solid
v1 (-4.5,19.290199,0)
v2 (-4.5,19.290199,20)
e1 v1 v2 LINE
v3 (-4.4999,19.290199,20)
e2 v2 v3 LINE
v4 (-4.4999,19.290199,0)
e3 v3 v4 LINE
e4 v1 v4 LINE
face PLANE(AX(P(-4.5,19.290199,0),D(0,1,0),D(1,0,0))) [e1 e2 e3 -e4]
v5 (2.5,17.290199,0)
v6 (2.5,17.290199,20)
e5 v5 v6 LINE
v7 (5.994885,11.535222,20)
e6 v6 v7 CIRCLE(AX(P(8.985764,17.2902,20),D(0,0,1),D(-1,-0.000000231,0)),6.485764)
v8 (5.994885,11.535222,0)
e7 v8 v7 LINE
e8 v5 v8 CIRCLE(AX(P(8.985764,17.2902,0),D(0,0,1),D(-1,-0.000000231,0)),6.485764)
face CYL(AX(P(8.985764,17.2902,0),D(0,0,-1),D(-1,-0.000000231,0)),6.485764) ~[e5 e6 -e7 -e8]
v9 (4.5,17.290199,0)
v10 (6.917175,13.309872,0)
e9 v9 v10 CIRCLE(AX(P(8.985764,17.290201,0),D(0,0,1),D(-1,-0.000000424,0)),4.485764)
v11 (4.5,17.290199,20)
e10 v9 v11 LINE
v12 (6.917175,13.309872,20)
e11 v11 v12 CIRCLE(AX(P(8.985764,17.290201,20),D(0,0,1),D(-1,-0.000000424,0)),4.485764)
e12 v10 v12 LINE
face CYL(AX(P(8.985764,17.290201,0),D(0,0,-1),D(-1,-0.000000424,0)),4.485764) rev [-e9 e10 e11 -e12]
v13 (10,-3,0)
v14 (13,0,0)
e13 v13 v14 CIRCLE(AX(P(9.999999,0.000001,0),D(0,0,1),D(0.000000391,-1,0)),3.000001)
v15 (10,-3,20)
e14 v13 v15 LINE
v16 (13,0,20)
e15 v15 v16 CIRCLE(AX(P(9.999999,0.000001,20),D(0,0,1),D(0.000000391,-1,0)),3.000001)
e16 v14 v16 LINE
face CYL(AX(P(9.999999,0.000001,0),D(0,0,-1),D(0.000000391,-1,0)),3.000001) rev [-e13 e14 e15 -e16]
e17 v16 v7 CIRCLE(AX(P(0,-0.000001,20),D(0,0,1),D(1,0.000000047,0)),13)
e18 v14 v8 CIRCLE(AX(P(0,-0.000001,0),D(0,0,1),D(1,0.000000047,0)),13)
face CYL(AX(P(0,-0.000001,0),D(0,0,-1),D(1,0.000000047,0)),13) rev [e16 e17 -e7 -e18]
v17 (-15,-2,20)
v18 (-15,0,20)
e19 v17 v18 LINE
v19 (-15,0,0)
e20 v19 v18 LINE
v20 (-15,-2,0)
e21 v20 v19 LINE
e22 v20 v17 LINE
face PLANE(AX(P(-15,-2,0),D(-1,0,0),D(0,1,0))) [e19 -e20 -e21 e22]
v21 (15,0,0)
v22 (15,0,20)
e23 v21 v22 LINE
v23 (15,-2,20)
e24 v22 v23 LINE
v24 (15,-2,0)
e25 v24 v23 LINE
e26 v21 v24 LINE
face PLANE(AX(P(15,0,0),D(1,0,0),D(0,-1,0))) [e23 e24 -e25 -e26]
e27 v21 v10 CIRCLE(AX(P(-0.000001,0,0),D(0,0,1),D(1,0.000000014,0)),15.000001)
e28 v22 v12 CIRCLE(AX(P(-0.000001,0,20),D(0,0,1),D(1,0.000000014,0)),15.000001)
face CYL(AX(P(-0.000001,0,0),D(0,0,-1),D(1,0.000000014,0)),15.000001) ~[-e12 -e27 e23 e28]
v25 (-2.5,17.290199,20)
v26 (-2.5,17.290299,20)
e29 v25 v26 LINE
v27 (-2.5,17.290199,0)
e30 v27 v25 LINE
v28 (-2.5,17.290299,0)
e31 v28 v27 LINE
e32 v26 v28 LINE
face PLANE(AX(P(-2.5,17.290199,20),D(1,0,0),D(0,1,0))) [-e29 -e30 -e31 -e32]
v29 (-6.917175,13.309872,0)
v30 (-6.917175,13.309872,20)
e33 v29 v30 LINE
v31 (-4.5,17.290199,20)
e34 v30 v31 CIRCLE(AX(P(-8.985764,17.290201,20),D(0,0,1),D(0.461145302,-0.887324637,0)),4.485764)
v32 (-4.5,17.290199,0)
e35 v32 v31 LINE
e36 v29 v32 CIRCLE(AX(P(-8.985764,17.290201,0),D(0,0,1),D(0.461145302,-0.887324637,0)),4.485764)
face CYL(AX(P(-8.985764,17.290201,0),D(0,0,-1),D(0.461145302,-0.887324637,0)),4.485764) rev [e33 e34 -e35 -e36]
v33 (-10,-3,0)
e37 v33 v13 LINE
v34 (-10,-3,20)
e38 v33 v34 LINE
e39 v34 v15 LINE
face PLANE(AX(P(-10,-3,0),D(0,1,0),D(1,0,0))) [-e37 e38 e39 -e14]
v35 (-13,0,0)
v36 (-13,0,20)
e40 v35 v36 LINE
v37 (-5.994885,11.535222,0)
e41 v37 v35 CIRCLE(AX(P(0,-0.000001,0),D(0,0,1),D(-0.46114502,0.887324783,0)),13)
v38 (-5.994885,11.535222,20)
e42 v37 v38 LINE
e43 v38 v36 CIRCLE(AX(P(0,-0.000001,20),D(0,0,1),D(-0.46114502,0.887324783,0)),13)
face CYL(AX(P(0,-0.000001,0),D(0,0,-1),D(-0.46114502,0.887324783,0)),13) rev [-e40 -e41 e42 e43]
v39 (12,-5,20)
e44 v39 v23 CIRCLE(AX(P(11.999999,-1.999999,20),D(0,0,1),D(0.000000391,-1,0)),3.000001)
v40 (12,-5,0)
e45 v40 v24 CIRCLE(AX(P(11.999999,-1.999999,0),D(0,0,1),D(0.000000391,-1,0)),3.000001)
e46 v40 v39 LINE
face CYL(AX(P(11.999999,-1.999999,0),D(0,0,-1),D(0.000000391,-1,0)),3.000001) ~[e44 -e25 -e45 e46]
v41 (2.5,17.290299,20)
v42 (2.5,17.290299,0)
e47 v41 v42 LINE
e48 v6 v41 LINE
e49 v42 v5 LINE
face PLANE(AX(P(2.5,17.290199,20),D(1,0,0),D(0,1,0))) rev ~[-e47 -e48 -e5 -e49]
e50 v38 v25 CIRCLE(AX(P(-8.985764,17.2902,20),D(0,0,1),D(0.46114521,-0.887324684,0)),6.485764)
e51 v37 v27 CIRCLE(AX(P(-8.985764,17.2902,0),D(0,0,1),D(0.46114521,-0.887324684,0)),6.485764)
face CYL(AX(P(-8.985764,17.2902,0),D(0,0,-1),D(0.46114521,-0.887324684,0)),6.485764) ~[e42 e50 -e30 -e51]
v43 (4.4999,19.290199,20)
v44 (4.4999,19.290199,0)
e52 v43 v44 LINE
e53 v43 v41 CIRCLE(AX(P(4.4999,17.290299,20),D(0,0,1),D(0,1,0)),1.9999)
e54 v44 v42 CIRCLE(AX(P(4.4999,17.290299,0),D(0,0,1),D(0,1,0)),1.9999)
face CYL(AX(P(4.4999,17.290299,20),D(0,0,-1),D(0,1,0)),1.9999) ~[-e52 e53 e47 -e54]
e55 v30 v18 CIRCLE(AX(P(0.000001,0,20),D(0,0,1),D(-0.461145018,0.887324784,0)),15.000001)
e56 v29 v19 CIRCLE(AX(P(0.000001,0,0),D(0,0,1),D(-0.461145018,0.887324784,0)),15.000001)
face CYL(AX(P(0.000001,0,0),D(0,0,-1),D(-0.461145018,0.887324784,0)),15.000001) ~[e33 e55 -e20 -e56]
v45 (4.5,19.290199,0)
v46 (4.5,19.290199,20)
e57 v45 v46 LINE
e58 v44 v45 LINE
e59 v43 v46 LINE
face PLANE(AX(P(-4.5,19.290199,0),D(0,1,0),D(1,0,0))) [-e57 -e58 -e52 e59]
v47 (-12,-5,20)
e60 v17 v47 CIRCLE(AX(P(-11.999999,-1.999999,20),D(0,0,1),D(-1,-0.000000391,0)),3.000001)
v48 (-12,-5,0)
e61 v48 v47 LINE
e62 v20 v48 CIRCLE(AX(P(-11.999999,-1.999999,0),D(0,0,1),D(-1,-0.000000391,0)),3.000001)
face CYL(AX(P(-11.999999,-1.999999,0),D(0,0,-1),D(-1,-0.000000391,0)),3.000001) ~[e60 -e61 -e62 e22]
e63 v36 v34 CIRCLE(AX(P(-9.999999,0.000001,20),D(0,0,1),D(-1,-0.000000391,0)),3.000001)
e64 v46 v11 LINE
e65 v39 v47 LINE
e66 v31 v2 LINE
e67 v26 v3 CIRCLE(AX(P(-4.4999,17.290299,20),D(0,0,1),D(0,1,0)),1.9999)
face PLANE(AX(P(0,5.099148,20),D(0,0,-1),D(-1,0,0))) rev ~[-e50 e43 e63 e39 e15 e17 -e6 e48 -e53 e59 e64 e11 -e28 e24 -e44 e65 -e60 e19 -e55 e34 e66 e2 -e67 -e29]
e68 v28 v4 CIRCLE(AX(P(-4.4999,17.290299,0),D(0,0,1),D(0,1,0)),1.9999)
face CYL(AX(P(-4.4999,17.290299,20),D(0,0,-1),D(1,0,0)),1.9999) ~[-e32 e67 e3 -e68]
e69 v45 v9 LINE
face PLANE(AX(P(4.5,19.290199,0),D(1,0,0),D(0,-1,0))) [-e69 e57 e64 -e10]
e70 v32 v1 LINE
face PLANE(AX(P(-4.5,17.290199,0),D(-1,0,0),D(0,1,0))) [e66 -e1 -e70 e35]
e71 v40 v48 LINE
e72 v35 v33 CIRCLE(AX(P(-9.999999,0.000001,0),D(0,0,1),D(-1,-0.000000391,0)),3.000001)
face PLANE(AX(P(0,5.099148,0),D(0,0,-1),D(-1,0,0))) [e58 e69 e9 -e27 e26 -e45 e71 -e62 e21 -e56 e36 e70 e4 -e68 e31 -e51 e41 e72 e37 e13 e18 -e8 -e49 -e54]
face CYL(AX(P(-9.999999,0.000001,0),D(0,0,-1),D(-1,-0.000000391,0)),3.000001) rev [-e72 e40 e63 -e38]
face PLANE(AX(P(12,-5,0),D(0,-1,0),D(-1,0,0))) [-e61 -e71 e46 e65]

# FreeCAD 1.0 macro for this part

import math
import FreeCAD as App
import Part
import Sketcher
from FreeCAD import Vector


def edges_at(feature, points):
    """Names of the edges that pass closest to the given points."""
    edges = feature.Shape.Edges
    near = lambda p: min(range(len(edges)), key=lambda i: edges[i].distToShape(Part.Vertex(*p))[0])
    return sorted({f"Edge{near(p) + 1}" for p in points})

doc = App.newDocument("Part")
params = doc.addObject("Spreadsheet::Sheet", "Params")
for row, (alias, value) in enumerate([
    ("sketch1_radius", "15.000001 mm"),
    ("sketch1_radius2", "3.000001 mm"),
    ("sketch1_radius3", "13 mm"),
    ("sketch1_width", "9 mm"),
    ("sketch1_height", "2 mm"),
    ("pad1_length", "20 mm"),
    ("sketch2_width", "5 mm"),
    ("sketch2_height", "2 mm"),
    ("fillet_radius", "1.9999 mm"),
], start=1):
    params.set(f"A{row}", alias)
    params.set(f"B{row}", "=" + value)
    params.setAlias(f"B{row}", alias)

body = doc.addObject("PartDesign::Body", "Body")

# Sketch on XY plane
sketch1 = doc.addObject("Sketcher::SketchObject", "Sketch")
body.addObject(sketch1)
sketch1.AttachmentSupport = (doc.XY_Plane, [""])
sketch1.MapMode = "FlatFace"
sketch1.addGeometry([
    Part.LineSegment(Vector(15, -2, 0), Vector(15, 0, 0)),  # 0
    Part.ArcOfCircle(Part.Circle(Vector(0, 0, 0), Vector(0, 0, 1), 15), math.radians(0), math.radians(63)),  # 1
    Part.ArcOfCircle(Part.Circle(Vector(9, 17.3, 0), Vector(0, 0, 1), 4.5), math.radians(-180), math.radians(-117)),  # 2
    Part.LineSegment(Vector(4.5, 17.3, 0), Vector(4.5, 19.3, 0)),  # 3
    Part.LineSegment(Vector(4.5, 19.3, 0), Vector(-4.5, 19.3, 0)),  # 4
    Part.LineSegment(Vector(-4.5, 19.3, 0), Vector(-4.5, 17.3, 0)),  # 5
    Part.ArcOfCircle(Part.Circle(Vector(-9, 17.3, 0), Vector(0, 0, 1), 4.5), math.radians(-63), math.radians(0)),  # 6
    Part.ArcOfCircle(Part.Circle(Vector(0, 0, 0), Vector(0, 0, 1), 15), math.radians(117), math.radians(180)),  # 7
    Part.LineSegment(Vector(-15, 0, 0), Vector(-15, -2, 0)),  # 8
    Part.ArcOfCircle(Part.Circle(Vector(-12, -2, 0), Vector(0, 0, 1), 3), math.radians(-180), math.radians(-90)),  # 9
    Part.LineSegment(Vector(-12, -5, 0), Vector(12, -5, 0)),  # 10
    Part.ArcOfCircle(Part.Circle(Vector(12, -2, 0), Vector(0, 0, 1), 3), math.radians(-90), math.radians(0)),  # 11
    Part.ArcOfCircle(Part.Circle(Vector(-10, 0, 0), Vector(0, 0, 1), 3), math.radians(-180), math.radians(-90)),  # 12
    Part.ArcOfCircle(Part.Circle(Vector(0, 0, 0), Vector(0, 0, 1), 13), math.radians(117), math.radians(180)),  # 13
    Part.ArcOfCircle(Part.Circle(Vector(-9, 17.3, 0), Vector(0, 0, 1), 6.5), math.radians(-63), math.radians(0)),  # 14
    Part.LineSegment(Vector(-2.5, 17.3, 0), Vector(2.5, 17.3, 0)),  # 15
    Part.ArcOfCircle(Part.Circle(Vector(9, 17.3, 0), Vector(0, 0, 1), 6.5), math.radians(-180), math.radians(-117)),  # 16
    Part.ArcOfCircle(Part.Circle(Vector(0, 0, 0), Vector(0, 0, 1), 13), math.radians(0), math.radians(63)),  # 17
    Part.ArcOfCircle(Part.Circle(Vector(10, 0, 0), Vector(0, 0, 1), 3), math.radians(-90), math.radians(0)),  # 18
    Part.LineSegment(Vector(10, -3, 0), Vector(-10, -3, 0)),  # 19
], False)
sketch1.addConstraint([
    Sketcher.Constraint("Tangent", 0, 2, 1, 1),
    Sketcher.Constraint("Tangent", 1, 2, 2, 2),
    Sketcher.Constraint("Tangent", 2, 1, 3, 1),
    Sketcher.Constraint("Coincident", 3, 2, 4, 1),
    Sketcher.Constraint("Coincident", 4, 2, 5, 1),
    Sketcher.Constraint("Tangent", 5, 2, 6, 2),
    Sketcher.Constraint("Tangent", 6, 1, 7, 1),
    Sketcher.Constraint("Tangent", 7, 2, 8, 1),
    Sketcher.Constraint("Tangent", 8, 2, 9, 1),
    Sketcher.Constraint("Tangent", 9, 2, 10, 1),
    Sketcher.Constraint("Tangent", 10, 2, 11, 1),
    Sketcher.Constraint("Tangent", 11, 2, 0, 1),
    Sketcher.Constraint("Tangent", 12, 1, 13, 2),
    Sketcher.Constraint("Tangent", 13, 1, 14, 1),
    Sketcher.Constraint("Coincident", 14, 2, 15, 1),
    Sketcher.Constraint("Coincident", 15, 2, 16, 1),
    Sketcher.Constraint("Tangent", 16, 2, 17, 2),
    Sketcher.Constraint("Tangent", 17, 1, 18, 2),
    Sketcher.Constraint("Tangent", 18, 1, 19, 1),
    Sketcher.Constraint("Tangent", 19, 2, 12, 2),
    Sketcher.Constraint("Vertical", 0),
    Sketcher.Constraint("Vertical", 3),
    Sketcher.Constraint("Horizontal", 4),
    Sketcher.Constraint("Vertical", 5),
    Sketcher.Constraint("Vertical", 8),
    Sketcher.Constraint("Horizontal", 10),
    Sketcher.Constraint("Horizontal", 15),
    Sketcher.Constraint("Horizontal", 19),
    Sketcher.Constraint("Coincident", 1, 3, -1, 1),
    Sketcher.Constraint("Coincident", 7, 3, -1, 1),
    Sketcher.Constraint("Coincident", 13, 3, -1, 1),
    Sketcher.Constraint("Coincident", 17, 3, -1, 1),
    Sketcher.Constraint("Coincident", 14, 3, 6, 3),
    Sketcher.Constraint("Coincident", 16, 3, 2, 3),
    Sketcher.Constraint("Equal", 2, 6),
    Sketcher.Constraint("Equal", 1, 7),
    Sketcher.Constraint("Equal", 9, 11),
    Sketcher.Constraint("Equal", 11, 12),
    Sketcher.Constraint("Equal", 14, 16),
    Sketcher.Constraint("Equal", 12, 18),
    Sketcher.Constraint("PointOnObject", 12, 3, -1),
    Sketcher.Constraint("Horizontal", 2, 3, 6, 3),
    Sketcher.Constraint("Horizontal", 5, 2, 14, 2),
    Sketcher.Constraint("Equal", 0, 3),
    Sketcher.Constraint("Radius", 1, 15.000001),
    Sketcher.Constraint("Radius", 9, 3.000001),
    Sketcher.Constraint("Radius", 13, 13.0),
    Sketcher.Constraint("DistanceX", 4, 2, 4, 1, 9.0),
    Sketcher.Constraint("DistanceY", 0, 1, 0, 2, 2.0),
    Sketcher.Constraint("Radius", 2, 4.485764),
])
sketch1.setExpression("Constraints[44]", "Params.sketch1_radius")
sketch1.setExpression("Constraints[45]", "Params.sketch1_radius2")
sketch1.setExpression("Constraints[46]", "Params.sketch1_radius3")
sketch1.setExpression("Constraints[47]", "Params.sketch1_width")
sketch1.setExpression("Constraints[48]", "Params.sketch1_height")
pad1 = doc.addObject("PartDesign::Pad", "Pad")
body.addObject(pad1)
pad1.Profile = sketch1
pad1.setExpression("Length", "Params.pad1_length")

# Sketch on XY plane
sketch2 = doc.addObject("Sketcher::SketchObject", "Sketch001")
body.addObject(sketch2)
sketch2.AttachmentSupport = (doc.XY_Plane, [""])
sketch2.MapMode = "FlatFace"
sketch2.AttachmentOffset = App.Placement(Vector(0, 0, 20), App.Rotation())
sketch2.addGeometry([
    Part.LineSegment(Vector(-2.5, 19.3, 0), Vector(-2.5, 17.3, 0)),
    Part.LineSegment(Vector(-2.5, 17.3, 0), Vector(2.5, 17.3, 0)),
    Part.LineSegment(Vector(2.5, 17.3, 0), Vector(2.5, 19.3, 0)),
    Part.LineSegment(Vector(2.5, 19.3, 0), Vector(-2.5, 19.3, 0)),
], False)
sketch2.addConstraint([
    Sketcher.Constraint("Coincident", 0, 2, 1, 1),
    Sketcher.Constraint("Coincident", 1, 2, 2, 1),
    Sketcher.Constraint("Coincident", 2, 2, 3, 1),
    Sketcher.Constraint("Coincident", 3, 2, 0, 1),
    Sketcher.Constraint("Vertical", 0),
    Sketcher.Constraint("Horizontal", 1),
    Sketcher.Constraint("Vertical", 2),
    Sketcher.Constraint("Horizontal", 3),
    Sketcher.Constraint("DistanceX", 1, 1, 1, 2, 5.0),
    Sketcher.Constraint("DistanceY", 0, 2, 0, 1, 2.0),
    Sketcher.Constraint("DistanceX", 0, 2, -1, 1, 2.5),
    Sketcher.Constraint("DistanceY", -1, 1, 0, 2, 17.290199),
])
sketch2.setExpression("Constraints[8]", "Params.sketch2_width")
sketch2.setExpression("Constraints[9]", "Params.sketch2_height")
pocket1 = doc.addObject("PartDesign::Pocket", "Pocket")
body.addObject(pocket1)
pocket1.Profile = sketch2
pocket1.Type = "ThroughAll"
doc.recompute()

fillet = doc.addObject("PartDesign::Fillet", "Fillet")
body.addObject(fillet)
fillet.Base = (pocket1, edges_at(pocket1, [(-2.5, 19.29, 10), (2.5, 19.29, 10)]))
fillet.setExpression("Radius", "Params.fillet_radius")

doc.recompute()
